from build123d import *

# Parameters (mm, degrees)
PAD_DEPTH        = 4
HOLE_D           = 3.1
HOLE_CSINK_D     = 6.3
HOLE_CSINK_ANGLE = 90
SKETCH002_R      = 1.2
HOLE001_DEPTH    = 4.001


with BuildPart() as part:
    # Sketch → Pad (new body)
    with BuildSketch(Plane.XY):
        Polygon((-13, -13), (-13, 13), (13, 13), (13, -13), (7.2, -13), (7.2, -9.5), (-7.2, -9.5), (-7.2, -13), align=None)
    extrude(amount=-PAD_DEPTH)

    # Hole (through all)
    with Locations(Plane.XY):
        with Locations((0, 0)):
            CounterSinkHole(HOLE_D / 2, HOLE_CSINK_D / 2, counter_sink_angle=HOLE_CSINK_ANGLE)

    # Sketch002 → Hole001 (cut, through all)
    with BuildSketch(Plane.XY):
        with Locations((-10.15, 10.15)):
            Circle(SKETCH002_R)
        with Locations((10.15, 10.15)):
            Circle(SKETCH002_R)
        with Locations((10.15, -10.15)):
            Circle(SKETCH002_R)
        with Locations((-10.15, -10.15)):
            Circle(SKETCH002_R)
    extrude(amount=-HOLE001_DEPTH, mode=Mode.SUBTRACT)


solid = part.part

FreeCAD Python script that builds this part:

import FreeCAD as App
import Part
import Sketcher
Q = App.Units.Quantity


def add_polygon(sketch, points):
    """Adds a closed chain of lines whose ends are joined by coincident constraints."""
    first, n = sketch.GeometryCount, len(points)
    for a, b in zip(points, points[1:] + points[:1]):
        sketch.addGeometry(Part.LineSegment(App.Vector(*a, 0), App.Vector(*b, 0)), False)
    for i in range(n):
        sketch.addConstraint(Sketcher.Constraint("Coincident", first + i, 2, first + (i + 1) % n, 1))

doc = App.newDocument("Part")
body = doc.addObject("PartDesign::Body", "Body")

# Sketch on XY plane
sketch1 = body.newObject("Sketcher::SketchObject", "Sketch")
sketch1.AttachmentSupport = (doc.getObject("XY_Plane"), [""])
sketch1.MapMode = "FlatFace"
add_polygon(sketch1, [(-13, 13), (-13, -13), (-7.2, -13), (-7.2, -9.5), (7.2, -9.5), (7.2, -13), (13, -13), (13, 13)])  # lines 0-7
sketch1.addConstraint(Sketcher.Constraint("Vertical", 0))
sketch1.addConstraint(Sketcher.Constraint("Horizontal", 1))
sketch1.addConstraint(Sketcher.Constraint("Vertical", 2))
sketch1.addConstraint(Sketcher.Constraint("Horizontal", 3))
sketch1.addConstraint(Sketcher.Constraint("Vertical", 4))
sketch1.addConstraint(Sketcher.Constraint("Horizontal", 5))
sketch1.addConstraint(Sketcher.Constraint("Vertical", 6))
sketch1.addConstraint(Sketcher.Constraint("Horizontal", 7))
sketch1.addConstraint(Sketcher.Constraint("Symmetric", 0, 2, 6, 2, -1, 1))
sketch1.addConstraint(Sketcher.Constraint("Symmetric", 1, 2, 4, 2, -2))
sketch1.addConstraint(Sketcher.Constraint("Equal", 7, 0))
sketch1.addConstraint(Sketcher.Constraint("DistanceX", 7, 2, 7, 1, Q("26 mm")))
sketch1.addConstraint(Sketcher.Constraint("DistanceX", 1, 1, 1, 2, Q("5.8 mm")))
sketch1.addConstraint(Sketcher.Constraint("DistanceY", 2, 1, 2, 2, Q("3.5 mm")))
pad1 = body.newObject("PartDesign::Pad", "Pad")
pad1.Profile = sketch1
pad1.Length = 4
pad1.Reversed = True

# Sketch on XY plane
sketch2 = body.newObject("Sketcher::SketchObject", "Sketch001")
sketch2.AttachmentSupport = (doc.getObject("XY_Plane"), [""])
sketch2.MapMode = "FlatFace"
sketch2.addGeometry(Part.Circle(App.Vector(0, 0, 0), App.Vector(0, 0, 1), 1.6), False)
sketch2.addConstraint(Sketcher.Constraint("Coincident", 0, 3, -1, 1))
sketch2.addConstraint(Sketcher.Constraint("Diameter", 0, Q("3.1 mm")))
doc.recompute()
hole = body.newObject("PartDesign::Hole", "Hole")
hole.Profile = sketch2
hole.ThreadType = "None"
hole.Diameter = 3.1
hole.DepthType = "ThroughAll"
hole.HoleCutType = "Countersink"
hole.HoleCutDiameter = 6.3
hole.HoleCutCountersinkAngle = 90

# Sketch on XY plane
sketch3 = body.newObject("Sketcher::SketchObject", "Sketch002")
sketch3.AttachmentSupport = (doc.getObject("XY_Plane"), [""])
sketch3.MapMode = "FlatFace"
sketch3.addGeometry(Part.Circle(App.Vector(-10.2, 10.2, 0), App.Vector(0, 0, 1), 1.2), False)
sketch3.addGeometry(Part.Circle(App.Vector(10.2, 10.2, 0), App.Vector(0, 0, 1), 1.2), False)
sketch3.addGeometry(Part.Circle(App.Vector(10.2, -10.2, 0), App.Vector(0, 0, 1), 1.2), False)
sketch3.addGeometry(Part.Circle(App.Vector(-10.2, -10.2, 0), App.Vector(0, 0, 1), 1.2), False)
sketch3.addConstraint(Sketcher.Constraint("Equal", 0, 1))
sketch3.addConstraint(Sketcher.Constraint("Equal", 1, 2))
sketch3.addConstraint(Sketcher.Constraint("Equal", 2, 3))
sketch3.addConstraint(Sketcher.Constraint("Symmetric", 0, 3, 2, 3, -1, 1))
sketch3.addConstraint(Sketcher.Constraint("Symmetric", 1, 3, 3, 3, -1, 1))
sketch3.addConstraint(Sketcher.Constraint("Symmetric", 0, 3, 1, 3, -2))
sketch3.addConstraint(Sketcher.Constraint("Diameter", 0, Q("2.4 mm")))
sketch3.addConstraint(Sketcher.Constraint("DistanceX", 0, 3, 1, 3, Q("20.3 mm")))
sketch3.addConstraint(Sketcher.Constraint("DistanceY", 2, 3, 1, 3, Q("20.3 mm")))
pocket1 = body.newObject("PartDesign::Pocket", "Pocket")
pocket1.Profile = sketch3
pocket1.Type = "ThroughAll"

doc.recompute()
